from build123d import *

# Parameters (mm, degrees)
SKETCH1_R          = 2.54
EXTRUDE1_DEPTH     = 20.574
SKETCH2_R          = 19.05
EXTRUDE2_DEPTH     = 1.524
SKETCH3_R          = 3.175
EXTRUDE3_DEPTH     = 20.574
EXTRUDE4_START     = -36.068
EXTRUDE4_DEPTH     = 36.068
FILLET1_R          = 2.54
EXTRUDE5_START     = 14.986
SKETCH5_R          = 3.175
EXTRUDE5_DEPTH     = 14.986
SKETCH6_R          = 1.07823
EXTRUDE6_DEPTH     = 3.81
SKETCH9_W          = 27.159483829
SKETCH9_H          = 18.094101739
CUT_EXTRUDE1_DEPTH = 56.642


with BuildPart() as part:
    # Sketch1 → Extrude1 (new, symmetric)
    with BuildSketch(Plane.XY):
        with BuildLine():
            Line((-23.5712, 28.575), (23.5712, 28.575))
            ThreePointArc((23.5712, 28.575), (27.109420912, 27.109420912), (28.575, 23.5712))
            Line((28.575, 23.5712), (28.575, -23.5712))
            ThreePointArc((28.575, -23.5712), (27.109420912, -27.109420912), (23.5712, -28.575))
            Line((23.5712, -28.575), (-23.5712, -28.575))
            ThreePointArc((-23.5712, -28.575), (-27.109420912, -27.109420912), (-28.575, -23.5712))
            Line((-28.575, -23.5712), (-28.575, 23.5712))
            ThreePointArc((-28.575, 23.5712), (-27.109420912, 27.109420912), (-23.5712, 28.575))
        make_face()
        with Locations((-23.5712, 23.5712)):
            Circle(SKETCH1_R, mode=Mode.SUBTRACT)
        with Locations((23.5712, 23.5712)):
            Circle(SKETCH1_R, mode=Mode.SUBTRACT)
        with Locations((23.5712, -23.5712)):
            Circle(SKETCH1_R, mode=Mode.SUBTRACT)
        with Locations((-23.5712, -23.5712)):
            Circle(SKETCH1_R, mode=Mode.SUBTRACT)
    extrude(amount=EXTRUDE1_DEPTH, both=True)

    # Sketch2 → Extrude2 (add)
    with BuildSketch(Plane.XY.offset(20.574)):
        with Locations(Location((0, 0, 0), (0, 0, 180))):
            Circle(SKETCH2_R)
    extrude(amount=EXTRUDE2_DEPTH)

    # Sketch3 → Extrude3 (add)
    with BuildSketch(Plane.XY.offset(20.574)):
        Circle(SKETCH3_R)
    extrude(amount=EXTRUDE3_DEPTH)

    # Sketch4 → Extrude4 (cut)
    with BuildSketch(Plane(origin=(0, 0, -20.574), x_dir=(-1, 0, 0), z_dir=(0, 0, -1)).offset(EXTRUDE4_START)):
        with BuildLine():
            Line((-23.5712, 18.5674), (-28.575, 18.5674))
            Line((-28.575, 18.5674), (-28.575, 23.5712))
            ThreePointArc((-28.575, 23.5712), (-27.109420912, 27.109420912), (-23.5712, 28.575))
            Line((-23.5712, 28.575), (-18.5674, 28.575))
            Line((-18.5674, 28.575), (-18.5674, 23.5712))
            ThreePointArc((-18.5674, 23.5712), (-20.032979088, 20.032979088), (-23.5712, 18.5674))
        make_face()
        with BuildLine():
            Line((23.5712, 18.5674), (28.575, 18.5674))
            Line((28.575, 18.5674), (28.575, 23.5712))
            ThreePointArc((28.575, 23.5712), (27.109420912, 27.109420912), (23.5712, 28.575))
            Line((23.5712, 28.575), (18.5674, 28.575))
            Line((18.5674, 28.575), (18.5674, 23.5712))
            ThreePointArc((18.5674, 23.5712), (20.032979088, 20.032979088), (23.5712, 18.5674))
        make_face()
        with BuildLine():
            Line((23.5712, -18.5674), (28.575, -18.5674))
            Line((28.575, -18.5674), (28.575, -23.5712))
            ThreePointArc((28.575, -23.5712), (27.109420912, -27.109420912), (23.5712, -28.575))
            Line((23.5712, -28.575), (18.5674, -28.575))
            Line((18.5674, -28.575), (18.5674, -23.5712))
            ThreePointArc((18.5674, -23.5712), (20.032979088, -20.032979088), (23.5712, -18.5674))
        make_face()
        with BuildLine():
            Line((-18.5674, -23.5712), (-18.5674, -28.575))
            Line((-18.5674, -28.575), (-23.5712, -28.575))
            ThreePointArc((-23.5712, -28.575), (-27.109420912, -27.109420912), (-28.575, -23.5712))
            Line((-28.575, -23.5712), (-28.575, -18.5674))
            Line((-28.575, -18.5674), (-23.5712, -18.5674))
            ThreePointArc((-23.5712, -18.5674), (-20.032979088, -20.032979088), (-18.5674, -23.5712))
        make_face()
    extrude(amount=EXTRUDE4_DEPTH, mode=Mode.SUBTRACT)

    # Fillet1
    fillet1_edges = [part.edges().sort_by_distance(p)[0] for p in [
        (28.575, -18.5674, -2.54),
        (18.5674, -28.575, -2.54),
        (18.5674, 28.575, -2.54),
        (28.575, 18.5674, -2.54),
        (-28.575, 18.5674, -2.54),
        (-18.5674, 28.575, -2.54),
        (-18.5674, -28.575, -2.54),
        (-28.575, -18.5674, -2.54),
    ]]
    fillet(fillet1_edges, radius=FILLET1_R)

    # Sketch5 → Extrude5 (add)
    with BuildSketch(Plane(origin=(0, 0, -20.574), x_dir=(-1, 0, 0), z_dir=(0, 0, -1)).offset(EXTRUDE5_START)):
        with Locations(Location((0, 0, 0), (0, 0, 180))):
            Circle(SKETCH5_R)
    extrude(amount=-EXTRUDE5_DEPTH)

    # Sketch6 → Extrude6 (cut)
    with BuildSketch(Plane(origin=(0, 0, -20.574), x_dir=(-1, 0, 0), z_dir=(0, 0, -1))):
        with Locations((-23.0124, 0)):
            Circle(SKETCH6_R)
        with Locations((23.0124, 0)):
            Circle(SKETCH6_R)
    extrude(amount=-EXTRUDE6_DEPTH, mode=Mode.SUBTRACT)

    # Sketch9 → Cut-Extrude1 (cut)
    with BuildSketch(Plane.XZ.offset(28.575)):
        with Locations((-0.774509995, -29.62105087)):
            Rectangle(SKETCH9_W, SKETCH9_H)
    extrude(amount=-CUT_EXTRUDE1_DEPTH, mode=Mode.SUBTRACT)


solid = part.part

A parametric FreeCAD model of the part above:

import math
import FreeCAD as App
import Part
import Sketcher

V = App.Vector
Q = App.Units.Quantity


def edges_at(feature, points):
    """Names of the edges that pass closest to the given points."""
    edges = feature.Shape.Edges
    near = lambda p: min(range(len(edges)), key=lambda i: edges[i].distToShape(Part.Vertex(*p))[0])
    return sorted({f"Edge{near(p) + 1}" for p in points})


def add_polygon(sketch, points):
    """Adds a closed chain of lines whose ends are joined by coincident constraints."""
    first, n = sketch.GeometryCount, len(points)
    for a, b in zip(points, points[1:] + points[:1]):
        sketch.addGeometry(Part.LineSegment(App.Vector(*a, 0), App.Vector(*b, 0)), False)
    for i in range(n):
        sketch.addConstraint(Sketcher.Constraint("Coincident", first + i, 2, first + (i + 1) % n, 1))

doc = App.newDocument("Part")
body = doc.addObject("PartDesign::Body", "Body")

# Sketch on XY plane
sketch1 = body.newObject("Sketcher::SketchObject", "Sketch")
sketch1.AttachmentSupport = (doc.getObject("XY_Plane"), [""])
sketch1.MapMode = "FlatFace"
sketch1.addGeometry(Part.LineSegment(V(23.5712, 28.575, 0), V(-23.5712, 28.575, 0)), False)
sketch1.addGeometry(Part.ArcOfCircle(Part.Circle(V(-23.5712, 23.5712, 0), V(0, 0, 1), 5.0038), math.radians(90), math.radians(180)), False)
sketch1.addGeometry(Part.LineSegment(V(-28.575, 23.5712, 0), V(-28.575, -23.5712, 0)), False)
sketch1.addGeometry(Part.ArcOfCircle(Part.Circle(V(-23.5712, -23.5712, 0), V(0, 0, 1), 5.0038), math.radians(180), math.radians(270)), False)
sketch1.addGeometry(Part.LineSegment(V(-23.5712, -28.575, 0), V(23.5712, -28.575, 0)), False)
sketch1.addGeometry(Part.ArcOfCircle(Part.Circle(V(23.5712, -23.5712, 0), V(0, 0, 1), 5.0038), math.radians(-90), math.radians(0)), False)
sketch1.addGeometry(Part.LineSegment(V(28.575, -23.5712, 0), V(28.575, 23.5712, 0)), False)
sketch1.addGeometry(Part.ArcOfCircle(Part.Circle(V(23.5712, 23.5712, 0), V(0, 0, 1), 5.0038), math.radians(0), math.radians(90)), False)
sketch1.addGeometry(Part.Circle(V(23.5712, -23.5712, 0), V(0, 0, 1), 2.54), False)
sketch1.addGeometry(Part.Circle(V(-23.5712, -23.5712, 0), V(0, 0, 1), 2.54), False)
sketch1.addGeometry(Part.Circle(V(23.5712, 23.5712, 0), V(0, 0, 1), 2.54), False)
sketch1.addGeometry(Part.Circle(V(-23.5712, 23.5712, 0), V(0, 0, 1), 2.54), False)
sketch1.addConstraint(Sketcher.Constraint("Tangent", 0, 2, 1, 1))
sketch1.addConstraint(Sketcher.Constraint("Tangent", 1, 2, 2, 1))
sketch1.addConstraint(Sketcher.Constraint("Tangent", 2, 2, 3, 1))
sketch1.addConstraint(Sketcher.Constraint("Tangent", 3, 2, 4, 1))
sketch1.addConstraint(Sketcher.Constraint("Tangent", 4, 2, 5, 1))
sketch1.addConstraint(Sketcher.Constraint("Tangent", 5, 2, 6, 1))
sketch1.addConstraint(Sketcher.Constraint("Tangent", 6, 2, 7, 1))
sketch1.addConstraint(Sketcher.Constraint("Tangent", 7, 2, 0, 1))
sketch1.addConstraint(Sketcher.Constraint("Horizontal", 0))
sketch1.addConstraint(Sketcher.Constraint("Vertical", 2))
sketch1.addConstraint(Sketcher.Constraint("Horizontal", 4))
sketch1.addConstraint(Sketcher.Constraint("Vertical", 6))
sketch1.addConstraint(Sketcher.Constraint("Coincident", 8, 3, 5, 3))
sketch1.addConstraint(Sketcher.Constraint("Coincident", 9, 3, 3, 3))
sketch1.addConstraint(Sketcher.Constraint("Coincident", 10, 3, 7, 3))
sketch1.addConstraint(Sketcher.Constraint("Coincident", 11, 3, 1, 3))
sketch1.addConstraint(Sketcher.Constraint("Equal", 1, 3))
sketch1.addConstraint(Sketcher.Constraint("Equal", 3, 5))
sketch1.addConstraint(Sketcher.Constraint("Equal", 5, 7))
sketch1.addConstraint(Sketcher.Constraint("Equal", 8, 9))
sketch1.addConstraint(Sketcher.Constraint("Equal", 9, 10))
sketch1.addConstraint(Sketcher.Constraint("Equal", 10, 11))
sketch1.addConstraint(Sketcher.Constraint("Symmetric", 1, 3, 5, 3, -1, 1))
sketch1.addConstraint(Sketcher.Constraint("Equal", 4, 2))
sketch1.addConstraint(Sketcher.Constraint("Diameter", 8, Q("0.2 in")))
sketch1.addConstraint(Sketcher.Constraint("Radius", 1, Q("0.197 in")))
sketch1.addConstraint(Sketcher.Constraint("DistanceX", 0, 2, 0, 1, Q("1.856 in")))
pad1 = body.newObject("PartDesign::Pad", "Pad")
pad1.Profile = sketch1
pad1.Length = Q("1.62 in")
pad1.Midplane = True

# Sketch on XY plane
sketch2 = body.newObject("Sketcher::SketchObject", "Sketch001")
sketch2.AttachmentSupport = (doc.getObject("XY_Plane"), [""])
sketch2.MapMode = "FlatFace"
sketch2.AttachmentOffset = App.Placement(V(0, 0, 0.81 * 25.4), App.Rotation())
sketch2.addGeometry(Part.Circle(V(0, 0, 0), V(0, 0, 1), 19.05), False)
sketch2.addConstraint(Sketcher.Constraint("Coincident", 0, 3, -1, 1))
sketch2.addConstraint(Sketcher.Constraint("Diameter", 0, Q("1.5 in")))
pad2 = body.newObject("PartDesign::Pad", "Pad001")
pad2.Profile = sketch2
pad2.Length = Q("0.06 in")

# Sketch on XY plane
sketch3 = body.newObject("Sketcher::SketchObject", "Sketch002")
sketch3.AttachmentSupport = (doc.getObject("XY_Plane"), [""])
sketch3.MapMode = "FlatFace"
sketch3.AttachmentOffset = App.Placement(V(0, 0, 0.81 * 25.4), App.Rotation())
sketch3.addGeometry(Part.Circle(V(0, 0, 0), V(0, 0, 1), 3.175), False)
sketch3.addConstraint(Sketcher.Constraint("Coincident", 0, 3, -1, 1))
sketch3.addConstraint(Sketcher.Constraint("Diameter", 0, Q("0.25 in")))
pad3 = body.newObject("PartDesign::Pad", "Pad002")
pad3.Profile = sketch3
pad3.Length = Q("0.81 in")

# Sketch on XY plane
sketch4 = body.newObject("Sketcher::SketchObject", "Sketch003")
sketch4.AttachmentSupport = (doc.getObject("XY_Plane"), [""])
sketch4.MapMode = "FlatFace"
sketch4.AttachmentOffset = App.Placement(V(0, 0, 0.61 * 25.4), App.Rotation())
sketch4.addGeometry(Part.LineSegment(V(28.575, 18.5674, 0), V(23.5712, 18.5674, 0)), False)
sketch4.addGeometry(Part.ArcOfCircle(Part.Circle(V(23.5712, 23.5712, 0), V(0, 0, 1), 5.0038), math.radians(180), math.radians(270)), False)
sketch4.addGeometry(Part.LineSegment(V(18.5674, 23.5712, 0), V(18.5674, 28.575, 0)), False)
sketch4.addGeometry(Part.LineSegment(V(18.5674, 28.575, 0), V(23.5712, 28.575, 0)), False)
sketch4.addGeometry(Part.ArcOfCircle(Part.Circle(V(23.5712, 23.5712, 0), V(0, 0, 1), 5.0038), math.radians(0), math.radians(90)), False)
sketch4.addGeometry(Part.LineSegment(V(28.575, 23.5712, 0), V(28.575, 18.5674, 0)), False)
sketch4.addGeometry(Part.LineSegment(V(-23.5712, 18.5674, 0), V(-28.575, 18.5674, 0)), False)
sketch4.addGeometry(Part.LineSegment(V(-28.575, 18.5674, 0), V(-28.575, 23.5712, 0)), False)
sketch4.addGeometry(Part.ArcOfCircle(Part.Circle(V(-23.5712, 23.5712, 0), V(0, 0, 1), 5.0038), math.radians(90), math.radians(180)), False)
sketch4.addGeometry(Part.LineSegment(V(-23.5712, 28.575, 0), V(-18.5674, 28.575, 0)), False)
sketch4.addGeometry(Part.LineSegment(V(-18.5674, 28.575, 0), V(-18.5674, 23.5712, 0)), False)
sketch4.addGeometry(Part.ArcOfCircle(Part.Circle(V(-23.5712, 23.5712, 0), V(0, 0, 1), 5.0038), math.radians(-90), math.radians(0)), False)
sketch4.addGeometry(Part.LineSegment(V(-28.575, -18.5674, 0), V(-23.5712, -18.5674, 0)), False)
sketch4.addGeometry(Part.ArcOfCircle(Part.Circle(V(-23.5712, -23.5712, 0), V(0, 0, 1), 5.0038), math.radians(0), math.radians(90)), False)
sketch4.addGeometry(Part.LineSegment(V(-18.5674, -23.5712, 0), V(-18.5674, -28.575, 0)), False)
sketch4.addGeometry(Part.LineSegment(V(-18.5674, -28.575, 0), V(-23.5712, -28.575, 0)), False)
sketch4.addGeometry(Part.ArcOfCircle(Part.Circle(V(-23.5712, -23.5712, 0), V(0, 0, 1), 5.0038), math.radians(180), math.radians(270)), False)
sketch4.addGeometry(Part.LineSegment(V(-28.575, -23.5712, 0), V(-28.575, -18.5674, 0)), False)
sketch4.addGeometry(Part.LineSegment(V(18.5674, -28.575, 0), V(18.5674, -23.5712, 0)), False)
sketch4.addGeometry(Part.ArcOfCircle(Part.Circle(V(23.5712, -23.5712, 0), V(0, 0, 1), 5.0038), math.radians(90), math.radians(180)), False)
sketch4.addGeometry(Part.LineSegment(V(23.5712, -18.5674, 0), V(28.575, -18.5674, 0)), False)
sketch4.addGeometry(Part.LineSegment(V(28.575, -18.5674, 0), V(28.575, -23.5712, 0)), False)
sketch4.addGeometry(Part.ArcOfCircle(Part.Circle(V(23.5712, -23.5712, 0), V(0, 0, 1), 5.0038), math.radians(-90), math.radians(0)), False)
sketch4.addGeometry(Part.LineSegment(V(23.5712, -28.575, 0), V(18.5674, -28.575, 0)), False)
sketch4.addConstraint(Sketcher.Constraint("Tangent", 0, 2, 1, 2))
sketch4.addConstraint(Sketcher.Constraint("Tangent", 1, 1, 2, 1))
sketch4.addConstraint(Sketcher.Constraint("Coincident", 2, 2, 3, 1))
sketch4.addConstraint(Sketcher.Constraint("Tangent", 3, 2, 4, 2))
sketch4.addConstraint(Sketcher.Constraint("Tangent", 4, 1, 5, 1))
sketch4.addConstraint(Sketcher.Constraint("Coincident", 5, 2, 0, 1))
sketch4.addConstraint(Sketcher.Constraint("Coincident", 6, 2, 7, 1))
sketch4.addConstraint(Sketcher.Constraint("Tangent", 7, 2, 8, 2))
sketch4.addConstraint(Sketcher.Constraint("Tangent", 8, 1, 9, 1))
sketch4.addConstraint(Sketcher.Constraint("Coincident", 9, 2, 10, 1))
sketch4.addConstraint(Sketcher.Constraint("Tangent", 10, 2, 11, 2))
sketch4.addConstraint(Sketcher.Constraint("Tangent", 11, 1, 6, 1))
sketch4.addConstraint(Sketcher.Constraint("Tangent", 12, 2, 13, 2))
sketch4.addConstraint(Sketcher.Constraint("Tangent", 13, 1, 14, 1))
sketch4.addConstraint(Sketcher.Constraint("Coincident", 14, 2, 15, 1))
sketch4.addConstraint(Sketcher.Constraint("Tangent", 15, 2, 16, 2))
sketch4.addConstraint(Sketcher.Constraint("Tangent", 16, 1, 17, 1))
sketch4.addConstraint(Sketcher.Constraint("Coincident", 17, 2, 12, 1))
sketch4.addConstraint(Sketcher.Constraint("Tangent", 18, 2, 19, 2))
sketch4.addConstraint(Sketcher.Constraint("Tangent", 19, 1, 20, 1))
sketch4.addConstraint(Sketcher.Constraint("Coincident", 20, 2, 21, 1))
sketch4.addConstraint(Sketcher.Constraint("Tangent", 21, 2, 22, 2))
sketch4.addConstraint(Sketcher.Constraint("Tangent", 22, 1, 23, 1))
sketch4.addConstraint(Sketcher.Constraint("Coincident", 23, 2, 18, 1))
sketch4.addConstraint(Sketcher.Constraint("Horizontal", 0))
sketch4.addConstraint(Sketcher.Constraint("Vertical", 2))
sketch4.addConstraint(Sketcher.Constraint("Horizontal", 3))
sketch4.addConstraint(Sketcher.Constraint("Vertical", 5))
sketch4.addConstraint(Sketcher.Constraint("Horizontal", 6))
sketch4.addConstraint(Sketcher.Constraint("Vertical", 7))
sketch4.addConstraint(Sketcher.Constraint("Horizontal", 9))
sketch4.addConstraint(Sketcher.Constraint("Vertical", 10))
sketch4.addConstraint(Sketcher.Constraint("Horizontal", 12))
sketch4.addConstraint(Sketcher.Constraint("Vertical", 14))
sketch4.addConstraint(Sketcher.Constraint("Horizontal", 15))
sketch4.addConstraint(Sketcher.Constraint("Vertical", 17))
sketch4.addConstraint(Sketcher.Constraint("Vertical", 18))
sketch4.addConstraint(Sketcher.Constraint("Horizontal", 20))
sketch4.addConstraint(Sketcher.Constraint("Vertical", 21))
sketch4.addConstraint(Sketcher.Constraint("Horizontal", 23))
sketch4.addConstraint(Sketcher.Constraint("Coincident", 4, 3, 1, 3))
sketch4.addConstraint(Sketcher.Constraint("Coincident", 11, 3, 8, 3))
sketch4.addConstraint(Sketcher.Constraint("Coincident", 16, 3, 13, 3))
sketch4.addConstraint(Sketcher.Constraint("Coincident", 22, 3, 19, 3))
sketch4.addConstraint(Sketcher.Constraint("Equal", 1, 4))
sketch4.addConstraint(Sketcher.Constraint("Equal", 4, 8))
sketch4.addConstraint(Sketcher.Constraint("Equal", 8, 11))
sketch4.addConstraint(Sketcher.Constraint("Equal", 11, 13))
sketch4.addConstraint(Sketcher.Constraint("Equal", 13, 16))
sketch4.addConstraint(Sketcher.Constraint("Equal", 16, 19))
sketch4.addConstraint(Sketcher.Constraint("Equal", 19, 22))
sketch4.addConstraint(Sketcher.Constraint("Symmetric", 1, 3, 13, 3, -1, 1))
sketch4.addConstraint(Sketcher.Constraint("Symmetric", 8, 3, 19, 3, -1, 1))
sketch4.addConstraint(Sketcher.Constraint("Symmetric", 1, 3, 8, 3, -2))
sketch4.addConstraint(Sketcher.Constraint("Radius", 1, Q("0.197 in")))
sketch4.addConstraint(Sketcher.Constraint("DistanceX", -1, 1, 1, 3, Q("0.928 in")))
sketch4.addConstraint(Sketcher.Constraint("DistanceY", -1, 1, 1, 3, Q("0.928 in")))
pocket1 = body.newObject("PartDesign::Pocket", "Pocket")
pocket1.Profile = sketch4
pocket1.Length = Q("1.42 in")
doc.recompute()

fillet = body.newObject("PartDesign::Fillet", "Fillet")
fillet.Base = (pocket1, edges_at(pocket1, [
    (28.575, -18.567, -2.54),
    (18.567, -28.575, -2.54),
    (18.567, 28.575, -2.54),
    (28.575, 18.567, -2.54),
    (-28.575, 18.567, -2.54),
    (-18.567, 28.575, -2.54),
    (-18.567, -28.575, -2.54),
    (-28.575, -18.567, -2.54),
]))
fillet.Radius = Q("0.1 in")

# Sketch on XY plane
sketch5 = body.newObject("Sketcher::SketchObject", "Sketch004")
sketch5.AttachmentSupport = (doc.getObject("XY_Plane"), [""])
sketch5.MapMode = "FlatFace"
sketch5.AttachmentOffset = App.Placement(V(0, 0, -1.4 * 25.4), App.Rotation())
sketch5.addGeometry(Part.Circle(V(0, 0, 0), V(0, 0, 1), 3.175), False)
sketch5.addConstraint(Sketcher.Constraint("Coincident", 0, 3, -1, 1))
sketch5.addConstraint(Sketcher.Constraint("Diameter", 0, Q("0.25 in")))
pad4 = body.newObject("PartDesign::Pad", "Pad003")
pad4.Profile = sketch5
pad4.Length = Q("0.59 in")

# Sketch on XY plane
sketch6 = body.newObject("Sketcher::SketchObject", "Sketch005")
sketch6.AttachmentSupport = (doc.getObject("XY_Plane"), [""])
sketch6.MapMode = "FlatFace"
sketch6.AttachmentOffset = App.Placement(V(0, 0, -0.81 * 25.4), App.Rotation())
sketch6.addGeometry(Part.Circle(V(23.0124, 0, 0), V(0, 0, 1), 1.07823), False)
sketch6.addGeometry(Part.Circle(V(-23.0124, 0, 0), V(0, 0, 1), 1.07823), False)
sketch6.addConstraint(Sketcher.Constraint("Equal", 0, 1))
sketch6.addConstraint(Sketcher.Constraint("Symmetric", 0, 3, 1, 3, -1, 1))
sketch6.addConstraint(Sketcher.Constraint("PointOnObject", 0, 3, -1))
sketch6.addConstraint(Sketcher.Constraint("Diameter", 0, Q("0.0849 in")))
sketch6.addConstraint(Sketcher.Constraint("DistanceX", -1, 1, 0, 3, Q("0.906 in")))
pocket2 = body.newObject("PartDesign::Pocket", "Pocket001")
pocket2.Profile = sketch6
pocket2.Length = Q("0.15 in")
pocket2.Reversed = True

# Sketch on XZ plane
sketch7 = body.newObject("Sketcher::SketchObject", "Sketch006")
sketch7.AttachmentSupport = (doc.getObject("XZ_Plane"), [""])
sketch7.MapMode = "FlatFace"
sketch7.AttachmentOffset = App.Placement(V(0, 0, 1.125 * 25.4), App.Rotation())
add_polygon(sketch7, [(-14.354252, -20.574), (-14.354252, -38.668102), (12.805232, -38.668102), (12.805232, -20.574)])  # lines 0-3
sketch7.addConstraint(Sketcher.Constraint("Vertical", 0))
sketch7.addConstraint(Sketcher.Constraint("Horizontal", 1))
sketch7.addConstraint(Sketcher.Constraint("Vertical", 2))
sketch7.addConstraint(Sketcher.Constraint("Horizontal", 3))
sketch7.addConstraint(Sketcher.Constraint("DistanceY", 2, 2, -1, 1, Q("0.81 in")))
sketch7.addConstraint(Sketcher.Constraint("DistanceY", 0, 2, 0, 1, Q("18.094102 mm")))
sketch7.addConstraint(Sketcher.Constraint("DistanceX", 1, 1, 1, 2, Q("27.159484 mm")))
sketch7.addConstraint(Sketcher.Constraint("DistanceX", 0, 2, -1, 1, Q("14.354252 mm")))
pocket3 = body.newObject("PartDesign::Pocket", "Pocket002")
pocket3.Profile = sketch7
pocket3.Length = Q("2.23 in")

doc.recompute()
